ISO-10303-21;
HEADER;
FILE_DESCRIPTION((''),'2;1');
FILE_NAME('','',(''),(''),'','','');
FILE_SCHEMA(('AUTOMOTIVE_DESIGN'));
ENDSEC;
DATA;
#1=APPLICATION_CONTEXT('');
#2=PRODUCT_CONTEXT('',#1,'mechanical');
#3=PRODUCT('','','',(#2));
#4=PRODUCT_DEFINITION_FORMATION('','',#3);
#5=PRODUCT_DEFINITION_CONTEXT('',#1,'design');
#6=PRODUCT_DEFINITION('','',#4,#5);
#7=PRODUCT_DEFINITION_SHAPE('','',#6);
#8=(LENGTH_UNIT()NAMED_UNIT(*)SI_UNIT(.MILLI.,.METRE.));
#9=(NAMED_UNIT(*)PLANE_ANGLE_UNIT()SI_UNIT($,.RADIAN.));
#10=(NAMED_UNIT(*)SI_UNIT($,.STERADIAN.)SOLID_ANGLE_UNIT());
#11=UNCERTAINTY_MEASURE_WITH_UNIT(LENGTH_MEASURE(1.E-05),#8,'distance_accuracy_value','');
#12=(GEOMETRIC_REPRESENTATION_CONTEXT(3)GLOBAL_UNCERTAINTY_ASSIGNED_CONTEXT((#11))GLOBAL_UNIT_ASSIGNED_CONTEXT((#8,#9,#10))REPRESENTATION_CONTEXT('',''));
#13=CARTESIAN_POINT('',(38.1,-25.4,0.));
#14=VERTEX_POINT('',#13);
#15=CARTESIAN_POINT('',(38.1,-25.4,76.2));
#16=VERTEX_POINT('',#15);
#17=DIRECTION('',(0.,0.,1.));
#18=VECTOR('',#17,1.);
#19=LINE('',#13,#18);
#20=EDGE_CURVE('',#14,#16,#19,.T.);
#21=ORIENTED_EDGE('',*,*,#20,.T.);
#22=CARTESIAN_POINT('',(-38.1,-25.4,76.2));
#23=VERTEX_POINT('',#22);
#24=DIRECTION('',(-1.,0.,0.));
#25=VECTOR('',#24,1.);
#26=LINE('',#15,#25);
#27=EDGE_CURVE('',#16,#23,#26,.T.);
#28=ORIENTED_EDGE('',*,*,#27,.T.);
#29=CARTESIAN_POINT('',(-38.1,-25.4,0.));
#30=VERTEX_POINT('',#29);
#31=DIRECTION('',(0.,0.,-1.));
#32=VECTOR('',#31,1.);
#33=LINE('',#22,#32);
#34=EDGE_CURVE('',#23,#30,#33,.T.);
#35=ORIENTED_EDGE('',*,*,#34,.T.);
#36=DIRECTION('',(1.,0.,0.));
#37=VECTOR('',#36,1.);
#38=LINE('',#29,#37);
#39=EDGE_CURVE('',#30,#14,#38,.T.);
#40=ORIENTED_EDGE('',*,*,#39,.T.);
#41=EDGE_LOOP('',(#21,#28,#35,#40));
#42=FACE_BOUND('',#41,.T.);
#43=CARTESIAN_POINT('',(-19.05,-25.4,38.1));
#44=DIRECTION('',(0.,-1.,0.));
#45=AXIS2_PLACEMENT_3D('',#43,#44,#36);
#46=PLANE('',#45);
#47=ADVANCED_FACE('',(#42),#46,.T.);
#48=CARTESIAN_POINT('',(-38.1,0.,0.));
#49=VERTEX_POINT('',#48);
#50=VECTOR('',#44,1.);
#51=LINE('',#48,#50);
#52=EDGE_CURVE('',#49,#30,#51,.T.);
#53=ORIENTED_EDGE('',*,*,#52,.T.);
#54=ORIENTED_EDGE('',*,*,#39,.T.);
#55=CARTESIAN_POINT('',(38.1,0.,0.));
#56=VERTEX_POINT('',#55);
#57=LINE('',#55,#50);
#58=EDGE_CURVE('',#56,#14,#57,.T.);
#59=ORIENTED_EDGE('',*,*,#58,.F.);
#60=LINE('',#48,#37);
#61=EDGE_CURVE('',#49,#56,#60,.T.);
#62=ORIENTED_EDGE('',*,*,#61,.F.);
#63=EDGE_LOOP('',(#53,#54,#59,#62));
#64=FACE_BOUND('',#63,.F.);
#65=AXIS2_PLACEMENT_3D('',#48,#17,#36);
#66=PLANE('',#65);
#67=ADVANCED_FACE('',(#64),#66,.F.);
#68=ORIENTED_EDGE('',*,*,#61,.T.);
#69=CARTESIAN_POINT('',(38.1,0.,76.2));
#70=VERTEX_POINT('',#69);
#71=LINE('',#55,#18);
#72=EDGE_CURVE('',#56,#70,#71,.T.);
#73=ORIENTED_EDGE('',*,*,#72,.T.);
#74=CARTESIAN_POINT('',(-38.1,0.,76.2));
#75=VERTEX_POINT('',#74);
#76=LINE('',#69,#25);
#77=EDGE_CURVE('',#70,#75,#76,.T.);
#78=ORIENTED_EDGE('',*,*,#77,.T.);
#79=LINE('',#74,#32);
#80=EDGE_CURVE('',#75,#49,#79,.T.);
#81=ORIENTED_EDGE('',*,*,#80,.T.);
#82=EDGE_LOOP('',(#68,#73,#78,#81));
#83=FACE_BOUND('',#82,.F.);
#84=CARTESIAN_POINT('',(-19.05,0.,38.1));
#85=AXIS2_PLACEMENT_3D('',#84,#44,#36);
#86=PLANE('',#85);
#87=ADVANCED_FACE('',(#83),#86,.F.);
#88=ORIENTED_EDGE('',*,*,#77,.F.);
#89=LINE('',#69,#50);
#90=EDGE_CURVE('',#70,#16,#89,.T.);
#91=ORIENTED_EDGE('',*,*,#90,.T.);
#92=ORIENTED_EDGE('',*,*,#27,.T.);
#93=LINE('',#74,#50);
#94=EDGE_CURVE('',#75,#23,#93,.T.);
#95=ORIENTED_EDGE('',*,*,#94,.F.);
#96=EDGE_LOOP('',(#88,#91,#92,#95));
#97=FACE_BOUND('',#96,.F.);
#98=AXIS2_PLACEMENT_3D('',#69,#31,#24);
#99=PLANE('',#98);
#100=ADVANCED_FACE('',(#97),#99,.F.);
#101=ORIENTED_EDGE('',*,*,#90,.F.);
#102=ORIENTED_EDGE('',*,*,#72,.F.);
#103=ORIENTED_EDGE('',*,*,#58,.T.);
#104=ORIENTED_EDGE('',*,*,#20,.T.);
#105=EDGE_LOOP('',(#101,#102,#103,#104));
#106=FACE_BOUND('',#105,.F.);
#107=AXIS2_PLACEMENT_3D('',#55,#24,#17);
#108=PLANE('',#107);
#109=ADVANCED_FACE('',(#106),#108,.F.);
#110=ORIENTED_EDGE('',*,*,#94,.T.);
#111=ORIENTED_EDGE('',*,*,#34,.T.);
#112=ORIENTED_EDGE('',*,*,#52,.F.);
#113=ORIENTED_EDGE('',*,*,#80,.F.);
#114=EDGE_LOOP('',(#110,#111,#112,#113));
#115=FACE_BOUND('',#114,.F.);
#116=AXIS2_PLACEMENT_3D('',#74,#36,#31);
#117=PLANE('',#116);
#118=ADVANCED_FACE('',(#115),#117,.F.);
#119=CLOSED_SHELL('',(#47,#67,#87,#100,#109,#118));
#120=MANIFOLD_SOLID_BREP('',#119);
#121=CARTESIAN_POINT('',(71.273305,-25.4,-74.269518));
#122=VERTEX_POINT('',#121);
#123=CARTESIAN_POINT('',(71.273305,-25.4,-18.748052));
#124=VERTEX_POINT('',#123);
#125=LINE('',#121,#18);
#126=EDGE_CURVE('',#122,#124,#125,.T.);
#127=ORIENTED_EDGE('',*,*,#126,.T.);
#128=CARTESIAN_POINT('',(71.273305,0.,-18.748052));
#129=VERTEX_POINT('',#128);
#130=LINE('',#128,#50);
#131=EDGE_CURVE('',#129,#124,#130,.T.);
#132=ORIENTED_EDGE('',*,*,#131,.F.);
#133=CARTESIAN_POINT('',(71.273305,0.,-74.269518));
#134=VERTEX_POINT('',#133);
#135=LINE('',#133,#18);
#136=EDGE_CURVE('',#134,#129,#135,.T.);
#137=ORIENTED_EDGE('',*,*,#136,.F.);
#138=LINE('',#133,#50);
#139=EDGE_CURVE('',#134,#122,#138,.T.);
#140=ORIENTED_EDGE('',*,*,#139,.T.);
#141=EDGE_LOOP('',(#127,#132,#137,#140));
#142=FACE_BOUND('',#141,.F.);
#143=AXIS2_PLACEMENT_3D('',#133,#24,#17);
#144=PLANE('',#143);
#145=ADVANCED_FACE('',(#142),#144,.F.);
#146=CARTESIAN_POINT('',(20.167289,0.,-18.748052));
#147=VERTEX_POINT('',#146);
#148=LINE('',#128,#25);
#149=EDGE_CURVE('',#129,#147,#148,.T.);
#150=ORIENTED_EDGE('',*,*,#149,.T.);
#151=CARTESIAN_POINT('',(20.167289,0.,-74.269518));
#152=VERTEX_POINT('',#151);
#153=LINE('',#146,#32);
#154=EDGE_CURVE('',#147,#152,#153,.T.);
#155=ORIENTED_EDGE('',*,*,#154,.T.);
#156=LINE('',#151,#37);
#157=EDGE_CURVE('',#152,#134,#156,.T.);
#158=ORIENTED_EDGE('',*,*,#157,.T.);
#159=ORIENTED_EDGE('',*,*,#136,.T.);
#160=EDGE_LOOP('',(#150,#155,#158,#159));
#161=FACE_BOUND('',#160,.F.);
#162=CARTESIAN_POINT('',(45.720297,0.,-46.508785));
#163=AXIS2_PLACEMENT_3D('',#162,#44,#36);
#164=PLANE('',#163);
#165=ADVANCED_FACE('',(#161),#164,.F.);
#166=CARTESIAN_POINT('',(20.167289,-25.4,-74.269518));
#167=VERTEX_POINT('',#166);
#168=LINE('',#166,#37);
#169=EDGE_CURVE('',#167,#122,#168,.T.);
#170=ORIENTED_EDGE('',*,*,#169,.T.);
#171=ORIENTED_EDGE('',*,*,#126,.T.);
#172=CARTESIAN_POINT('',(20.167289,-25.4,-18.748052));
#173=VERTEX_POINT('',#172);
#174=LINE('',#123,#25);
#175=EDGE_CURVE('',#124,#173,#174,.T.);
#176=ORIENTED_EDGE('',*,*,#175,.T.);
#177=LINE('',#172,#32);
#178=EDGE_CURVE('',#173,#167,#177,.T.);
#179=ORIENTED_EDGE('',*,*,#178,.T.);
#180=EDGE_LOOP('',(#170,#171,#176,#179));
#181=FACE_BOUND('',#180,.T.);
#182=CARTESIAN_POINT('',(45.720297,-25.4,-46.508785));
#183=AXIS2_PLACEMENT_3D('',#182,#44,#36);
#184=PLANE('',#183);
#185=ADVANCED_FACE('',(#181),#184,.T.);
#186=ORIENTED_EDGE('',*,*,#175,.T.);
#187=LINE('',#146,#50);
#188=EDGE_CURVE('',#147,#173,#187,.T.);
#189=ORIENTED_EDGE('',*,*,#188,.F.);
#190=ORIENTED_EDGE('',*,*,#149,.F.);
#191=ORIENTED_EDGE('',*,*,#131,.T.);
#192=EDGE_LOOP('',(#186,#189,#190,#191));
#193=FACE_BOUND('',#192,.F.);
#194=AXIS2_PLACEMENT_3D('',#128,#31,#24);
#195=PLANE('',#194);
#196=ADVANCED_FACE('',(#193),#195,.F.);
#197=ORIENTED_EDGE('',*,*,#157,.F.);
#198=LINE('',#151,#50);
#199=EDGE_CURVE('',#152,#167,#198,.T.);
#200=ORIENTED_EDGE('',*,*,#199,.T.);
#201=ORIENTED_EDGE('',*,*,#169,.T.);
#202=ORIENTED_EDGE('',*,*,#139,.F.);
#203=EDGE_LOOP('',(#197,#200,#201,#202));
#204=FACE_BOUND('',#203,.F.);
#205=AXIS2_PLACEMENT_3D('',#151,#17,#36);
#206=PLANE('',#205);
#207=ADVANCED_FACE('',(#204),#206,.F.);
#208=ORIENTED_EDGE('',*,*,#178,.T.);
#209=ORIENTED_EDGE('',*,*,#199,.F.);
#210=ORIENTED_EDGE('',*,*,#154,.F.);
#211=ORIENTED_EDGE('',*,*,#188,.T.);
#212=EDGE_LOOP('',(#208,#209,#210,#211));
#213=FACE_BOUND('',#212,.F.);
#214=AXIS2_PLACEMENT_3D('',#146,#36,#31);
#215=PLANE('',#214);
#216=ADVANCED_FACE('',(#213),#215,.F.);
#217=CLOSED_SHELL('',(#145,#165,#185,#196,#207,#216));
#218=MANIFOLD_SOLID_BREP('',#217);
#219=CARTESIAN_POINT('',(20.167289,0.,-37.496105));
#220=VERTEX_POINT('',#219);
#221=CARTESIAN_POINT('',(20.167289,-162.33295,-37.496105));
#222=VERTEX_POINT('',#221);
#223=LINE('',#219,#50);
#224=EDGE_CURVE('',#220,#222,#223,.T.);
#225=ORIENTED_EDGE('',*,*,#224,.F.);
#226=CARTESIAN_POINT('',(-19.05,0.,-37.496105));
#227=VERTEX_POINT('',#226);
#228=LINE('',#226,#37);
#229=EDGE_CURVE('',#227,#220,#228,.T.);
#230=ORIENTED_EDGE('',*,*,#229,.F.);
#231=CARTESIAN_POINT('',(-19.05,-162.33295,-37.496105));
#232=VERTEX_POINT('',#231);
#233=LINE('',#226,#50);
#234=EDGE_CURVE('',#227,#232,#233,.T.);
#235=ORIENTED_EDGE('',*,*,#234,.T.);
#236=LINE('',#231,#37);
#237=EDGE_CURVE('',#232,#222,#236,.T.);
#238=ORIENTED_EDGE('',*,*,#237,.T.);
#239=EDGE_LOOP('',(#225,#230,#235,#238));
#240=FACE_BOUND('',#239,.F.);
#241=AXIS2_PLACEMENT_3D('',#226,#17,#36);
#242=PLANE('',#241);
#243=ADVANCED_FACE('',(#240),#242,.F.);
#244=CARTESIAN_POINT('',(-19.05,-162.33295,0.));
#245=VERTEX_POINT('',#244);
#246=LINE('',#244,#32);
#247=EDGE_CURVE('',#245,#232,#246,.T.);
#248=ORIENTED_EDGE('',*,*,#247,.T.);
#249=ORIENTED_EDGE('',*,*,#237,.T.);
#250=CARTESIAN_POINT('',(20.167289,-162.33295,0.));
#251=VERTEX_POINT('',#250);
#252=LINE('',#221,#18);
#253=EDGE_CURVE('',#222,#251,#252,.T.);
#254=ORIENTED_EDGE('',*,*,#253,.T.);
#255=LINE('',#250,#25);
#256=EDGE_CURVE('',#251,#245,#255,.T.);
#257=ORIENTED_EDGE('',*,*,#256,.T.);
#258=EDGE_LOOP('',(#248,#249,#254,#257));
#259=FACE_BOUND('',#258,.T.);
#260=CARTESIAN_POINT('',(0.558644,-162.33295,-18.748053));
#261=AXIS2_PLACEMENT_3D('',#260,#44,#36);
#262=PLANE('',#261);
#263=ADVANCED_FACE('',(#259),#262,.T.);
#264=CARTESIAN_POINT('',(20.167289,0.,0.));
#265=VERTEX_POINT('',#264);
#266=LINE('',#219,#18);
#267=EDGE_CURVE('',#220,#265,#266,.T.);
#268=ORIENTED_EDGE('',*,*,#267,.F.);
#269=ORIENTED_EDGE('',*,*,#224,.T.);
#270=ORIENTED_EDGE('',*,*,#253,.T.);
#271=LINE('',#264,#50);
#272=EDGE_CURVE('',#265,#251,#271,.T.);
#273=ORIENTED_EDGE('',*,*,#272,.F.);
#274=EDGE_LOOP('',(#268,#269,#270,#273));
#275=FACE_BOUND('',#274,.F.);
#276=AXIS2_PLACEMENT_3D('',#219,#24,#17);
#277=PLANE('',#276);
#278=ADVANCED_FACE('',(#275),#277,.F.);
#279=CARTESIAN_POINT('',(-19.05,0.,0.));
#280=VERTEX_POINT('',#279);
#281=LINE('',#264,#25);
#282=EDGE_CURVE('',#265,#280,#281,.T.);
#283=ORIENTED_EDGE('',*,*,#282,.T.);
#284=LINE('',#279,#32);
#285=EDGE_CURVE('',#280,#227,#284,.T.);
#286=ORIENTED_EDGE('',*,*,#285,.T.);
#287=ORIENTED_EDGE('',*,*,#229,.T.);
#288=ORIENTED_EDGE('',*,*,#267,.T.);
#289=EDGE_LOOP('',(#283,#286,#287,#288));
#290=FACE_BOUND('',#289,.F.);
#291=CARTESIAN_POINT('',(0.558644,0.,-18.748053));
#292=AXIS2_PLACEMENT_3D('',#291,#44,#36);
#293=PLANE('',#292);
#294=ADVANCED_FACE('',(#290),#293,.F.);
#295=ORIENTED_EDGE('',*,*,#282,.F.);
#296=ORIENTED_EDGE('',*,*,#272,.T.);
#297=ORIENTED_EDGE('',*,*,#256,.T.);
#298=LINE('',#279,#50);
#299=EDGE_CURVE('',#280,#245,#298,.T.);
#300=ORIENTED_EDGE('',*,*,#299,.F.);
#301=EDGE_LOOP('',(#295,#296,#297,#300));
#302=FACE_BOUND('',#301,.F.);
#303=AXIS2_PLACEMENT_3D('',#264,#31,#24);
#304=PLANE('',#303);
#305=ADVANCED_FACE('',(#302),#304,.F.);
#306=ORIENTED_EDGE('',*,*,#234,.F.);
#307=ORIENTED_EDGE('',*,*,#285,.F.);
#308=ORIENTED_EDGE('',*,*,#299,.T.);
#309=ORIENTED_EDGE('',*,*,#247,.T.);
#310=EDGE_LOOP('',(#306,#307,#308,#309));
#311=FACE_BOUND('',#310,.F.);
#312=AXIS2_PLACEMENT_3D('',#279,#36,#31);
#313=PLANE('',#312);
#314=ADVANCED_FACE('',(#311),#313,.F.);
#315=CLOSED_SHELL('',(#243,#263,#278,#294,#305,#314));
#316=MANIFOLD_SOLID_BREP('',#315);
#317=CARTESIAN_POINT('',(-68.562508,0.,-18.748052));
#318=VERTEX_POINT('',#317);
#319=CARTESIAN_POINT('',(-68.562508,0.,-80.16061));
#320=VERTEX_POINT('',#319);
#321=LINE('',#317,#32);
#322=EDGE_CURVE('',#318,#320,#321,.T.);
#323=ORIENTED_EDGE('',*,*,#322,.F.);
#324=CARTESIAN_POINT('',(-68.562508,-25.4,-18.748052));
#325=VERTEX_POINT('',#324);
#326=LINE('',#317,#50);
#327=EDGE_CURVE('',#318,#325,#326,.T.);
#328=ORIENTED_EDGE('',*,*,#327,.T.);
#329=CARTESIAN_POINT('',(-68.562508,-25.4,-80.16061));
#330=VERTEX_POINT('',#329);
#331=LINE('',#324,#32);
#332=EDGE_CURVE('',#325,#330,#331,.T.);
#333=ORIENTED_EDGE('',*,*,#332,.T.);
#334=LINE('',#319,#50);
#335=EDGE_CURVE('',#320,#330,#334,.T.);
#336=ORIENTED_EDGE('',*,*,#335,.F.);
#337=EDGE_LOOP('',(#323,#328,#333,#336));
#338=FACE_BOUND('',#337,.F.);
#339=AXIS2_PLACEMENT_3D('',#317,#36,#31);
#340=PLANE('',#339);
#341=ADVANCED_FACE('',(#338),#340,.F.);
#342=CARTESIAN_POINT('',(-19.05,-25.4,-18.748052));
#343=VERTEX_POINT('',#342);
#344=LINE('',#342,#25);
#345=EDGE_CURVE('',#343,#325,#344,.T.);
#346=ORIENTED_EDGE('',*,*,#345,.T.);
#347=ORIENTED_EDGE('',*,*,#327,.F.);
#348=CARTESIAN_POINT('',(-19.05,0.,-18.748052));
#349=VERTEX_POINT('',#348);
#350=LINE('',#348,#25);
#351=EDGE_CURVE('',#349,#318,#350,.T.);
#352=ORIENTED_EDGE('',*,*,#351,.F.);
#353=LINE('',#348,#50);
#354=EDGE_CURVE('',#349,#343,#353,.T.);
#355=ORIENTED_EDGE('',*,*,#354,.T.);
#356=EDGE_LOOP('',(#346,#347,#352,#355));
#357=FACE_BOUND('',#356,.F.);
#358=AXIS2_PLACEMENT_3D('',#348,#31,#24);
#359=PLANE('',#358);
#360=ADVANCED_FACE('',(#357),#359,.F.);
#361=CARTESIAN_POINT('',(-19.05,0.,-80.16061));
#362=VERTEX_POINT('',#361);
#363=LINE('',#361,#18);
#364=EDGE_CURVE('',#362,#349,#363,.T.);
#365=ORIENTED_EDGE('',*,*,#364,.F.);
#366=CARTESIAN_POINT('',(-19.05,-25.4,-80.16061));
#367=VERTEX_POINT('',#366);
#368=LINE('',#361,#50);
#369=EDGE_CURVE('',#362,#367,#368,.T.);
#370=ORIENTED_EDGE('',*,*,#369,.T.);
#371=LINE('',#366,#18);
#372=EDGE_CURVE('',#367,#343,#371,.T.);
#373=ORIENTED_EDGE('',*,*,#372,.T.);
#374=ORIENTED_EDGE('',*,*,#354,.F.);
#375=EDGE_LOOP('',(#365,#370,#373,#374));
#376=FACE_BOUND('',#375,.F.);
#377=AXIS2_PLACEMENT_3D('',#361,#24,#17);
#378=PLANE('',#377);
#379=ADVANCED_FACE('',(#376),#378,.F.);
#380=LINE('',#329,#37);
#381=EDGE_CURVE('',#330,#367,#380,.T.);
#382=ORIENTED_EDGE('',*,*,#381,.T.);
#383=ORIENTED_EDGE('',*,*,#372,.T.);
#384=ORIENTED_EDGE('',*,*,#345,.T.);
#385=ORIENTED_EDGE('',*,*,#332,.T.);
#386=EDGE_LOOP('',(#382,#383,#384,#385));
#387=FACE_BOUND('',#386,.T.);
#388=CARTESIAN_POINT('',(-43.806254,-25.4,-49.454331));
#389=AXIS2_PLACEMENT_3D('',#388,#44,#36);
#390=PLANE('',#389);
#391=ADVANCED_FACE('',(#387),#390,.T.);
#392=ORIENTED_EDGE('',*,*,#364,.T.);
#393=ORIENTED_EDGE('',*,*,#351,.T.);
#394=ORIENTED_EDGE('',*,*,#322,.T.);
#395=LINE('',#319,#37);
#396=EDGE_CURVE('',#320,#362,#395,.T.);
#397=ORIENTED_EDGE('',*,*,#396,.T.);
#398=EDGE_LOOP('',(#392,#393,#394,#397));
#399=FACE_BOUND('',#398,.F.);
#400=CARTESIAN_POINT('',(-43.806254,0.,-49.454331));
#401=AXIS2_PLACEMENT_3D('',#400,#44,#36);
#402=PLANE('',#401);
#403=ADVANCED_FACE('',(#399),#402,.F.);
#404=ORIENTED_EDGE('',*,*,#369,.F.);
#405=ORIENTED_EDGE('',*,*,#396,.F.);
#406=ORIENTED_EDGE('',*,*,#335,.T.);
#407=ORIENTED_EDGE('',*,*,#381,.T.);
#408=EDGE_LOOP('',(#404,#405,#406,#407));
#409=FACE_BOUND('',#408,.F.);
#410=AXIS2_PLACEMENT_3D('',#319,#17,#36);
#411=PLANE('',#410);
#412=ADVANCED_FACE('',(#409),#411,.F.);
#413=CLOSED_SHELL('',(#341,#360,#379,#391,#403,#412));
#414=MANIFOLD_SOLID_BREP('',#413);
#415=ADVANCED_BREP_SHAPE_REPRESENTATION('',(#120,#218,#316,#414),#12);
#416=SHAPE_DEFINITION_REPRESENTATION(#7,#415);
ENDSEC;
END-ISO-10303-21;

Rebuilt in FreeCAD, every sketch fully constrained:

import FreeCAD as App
import Part
import Sketcher
Q = App.Units.Quantity

doc = App.newDocument("Part")
body = doc.addObject("PartDesign::Body", "Body")
body.AllowCompound = True

# Sketch on XZ plane
sketch1 = doc.addObject("Sketcher::SketchObject", "Sketch")
body.addObject(sketch1)
sketch1.AttachmentSupport = (doc.XZ_Plane, [""])
sketch1.MapMode = "FlatFace"
sketch1.addGeometry([
    Part.LineSegment(App.Vector(-38, 76, 0), App.Vector(-38, 0, 0)),  # 0
    Part.LineSegment(App.Vector(-38, 0, 0), App.Vector(38, 0, 0)),  # 1
    Part.LineSegment(App.Vector(38, 0, 0), App.Vector(38, 76, 0)),  # 2
    Part.LineSegment(App.Vector(38, 76, 0), App.Vector(-38, 76, 0)),  # 3
    Part.LineSegment(App.Vector(-19, -19, 0), App.Vector(-69, -19, 0)),  # 4
    Part.LineSegment(App.Vector(-69, -19, 0), App.Vector(-69, -80, 0)),  # 5
    Part.LineSegment(App.Vector(-69, -80, 0), App.Vector(-19, -80, 0)),  # 6
    Part.LineSegment(App.Vector(-19, -80, 0), App.Vector(-19, -19, 0)),  # 7
    Part.LineSegment(App.Vector(71, -19, 0), App.Vector(20, -19, 0)),  # 8
    Part.LineSegment(App.Vector(20, -19, 0), App.Vector(20, -74, 0)),  # 9
    Part.LineSegment(App.Vector(20, -74, 0), App.Vector(71, -74, 0)),  # 10
    Part.LineSegment(App.Vector(71, -74, 0), App.Vector(71, -19, 0)),  # 11
], False)
sketch1.addConstraint([
    Sketcher.Constraint("Coincident", 0, 2, 1, 1),
    Sketcher.Constraint("Coincident", 1, 2, 2, 1),
    Sketcher.Constraint("Coincident", 2, 2, 3, 1),
    Sketcher.Constraint("Coincident", 3, 2, 0, 1),
    Sketcher.Constraint("Coincident", 4, 2, 5, 1),
    Sketcher.Constraint("Coincident", 5, 2, 6, 1),
    Sketcher.Constraint("Coincident", 6, 2, 7, 1),
    Sketcher.Constraint("Coincident", 7, 2, 4, 1),
    Sketcher.Constraint("Coincident", 8, 2, 9, 1),
    Sketcher.Constraint("Coincident", 9, 2, 10, 1),
    Sketcher.Constraint("Coincident", 10, 2, 11, 1),
    Sketcher.Constraint("Coincident", 11, 2, 8, 1),
    Sketcher.Constraint("Vertical", 0),
    Sketcher.Constraint("Horizontal", 1),
    Sketcher.Constraint("Vertical", 2),
    Sketcher.Constraint("Horizontal", 3),
    Sketcher.Constraint("Horizontal", 4),
    Sketcher.Constraint("Vertical", 5),
    Sketcher.Constraint("Horizontal", 6),
    Sketcher.Constraint("Vertical", 7),
    Sketcher.Constraint("Horizontal", 8),
    Sketcher.Constraint("Vertical", 9),
    Sketcher.Constraint("Horizontal", 10),
    Sketcher.Constraint("Vertical", 11),
    Sketcher.Constraint("Symmetric", 0, 2, 1, 2, -1, 1),
    Sketcher.Constraint("Horizontal", 7, 2, 8, 2),
    Sketcher.Constraint("Equal", 3, 0),
    Sketcher.Constraint("DistanceX", 1, 1, 1, 2, Q("3 in")),
    Sketcher.Constraint("DistanceX", 6, 2, -1, 1, Q("0.75 in")),
    Sketcher.Constraint("DistanceY", 5, 2, 5, 1, Q("61.412558 mm")),
    Sketcher.Constraint("DistanceX", 4, 2, 4, 1, Q("49.512508 mm")),
    Sketcher.Constraint("DistanceX", 8, 2, 8, 1, Q("51.106016 mm")),
    Sketcher.Constraint("DistanceY", 9, 2, 9, 1, Q("55.521466 mm")),
    Sketcher.Constraint("DistanceY", 5, 2, -1, 1, Q("80.16061 mm")),
    Sketcher.Constraint("DistanceX", -1, 1, 8, 2, Q("20.167289 mm")),
])
pad1 = doc.addObject("PartDesign::Pad", "Pad")
body.addObject(pad1)
pad1.Profile = sketch1
pad1.Length = Q("1 in")
body2 = doc.addObject("PartDesign::Body", "Body001")

# Sketch on XZ plane
sketch2 = doc.addObject("Sketcher::SketchObject", "Sketch001")
body2.addObject(sketch2)
sketch2.AttachmentSupport = (doc.getObject("XZ_Plane001"), [""])
sketch2.MapMode = "FlatFace"
sketch2.addGeometry([
    Part.LineSegment(App.Vector(20, 0, 0), App.Vector(-19, 0, 0)),
    Part.LineSegment(App.Vector(-19, 0, 0), App.Vector(-19, -37, 0)),
    Part.LineSegment(App.Vector(-19, -37, 0), App.Vector(20, -37, 0)),
    Part.LineSegment(App.Vector(20, -37, 0), App.Vector(20, 0, 0)),
], False)
sketch2.addConstraint([
    Sketcher.Constraint("Coincident", 0, 2, 1, 1),
    Sketcher.Constraint("Coincident", 1, 2, 2, 1),
    Sketcher.Constraint("Coincident", 2, 2, 3, 1),
    Sketcher.Constraint("Coincident", 3, 2, 0, 1),
    Sketcher.Constraint("Horizontal", 0),
    Sketcher.Constraint("Vertical", 1),
    Sketcher.Constraint("Horizontal", 2),
    Sketcher.Constraint("Vertical", 3),
    Sketcher.Constraint("PointOnObject", 0, 2, -1),
    Sketcher.Constraint("DistanceX", 0, 2, -1, 1, Q("0.75 in")),
    Sketcher.Constraint("DistanceX", 0, 2, 0, 1, Q("39.217289 mm")),
    Sketcher.Constraint("DistanceY", 1, 2, 1, 1, Q("37.496105 mm")),
])
pad2 = doc.addObject("PartDesign::Pad", "Pad001")
body2.addObject(pad2)
pad2.Profile = sketch2
pad2.Length = 162.33295

doc.recompute()
